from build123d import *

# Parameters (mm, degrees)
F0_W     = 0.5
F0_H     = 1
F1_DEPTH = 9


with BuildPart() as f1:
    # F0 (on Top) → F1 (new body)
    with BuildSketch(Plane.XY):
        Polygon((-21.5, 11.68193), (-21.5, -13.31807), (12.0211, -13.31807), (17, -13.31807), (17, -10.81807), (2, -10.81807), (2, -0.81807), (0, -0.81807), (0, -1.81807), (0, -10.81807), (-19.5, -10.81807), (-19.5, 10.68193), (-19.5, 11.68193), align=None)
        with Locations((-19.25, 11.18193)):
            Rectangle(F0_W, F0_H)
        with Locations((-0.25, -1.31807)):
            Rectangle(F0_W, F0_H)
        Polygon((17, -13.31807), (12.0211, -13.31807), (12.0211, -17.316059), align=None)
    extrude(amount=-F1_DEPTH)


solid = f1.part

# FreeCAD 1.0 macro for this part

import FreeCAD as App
import Part
import Sketcher
from FreeCAD import Vector
Q = App.Units.Quantity

doc = App.newDocument("Part")
body = doc.addObject("PartDesign::Body", "Body")

# Sketch on XY plane
sketch1 = body.newObject("Sketcher::SketchObject", "Sketch")
sketch1.AttachmentSupport = (doc.getObject("XY_Plane"), [""])
sketch1.MapMode = "FlatFace"
sketch1.addGeometry([
    Part.LineSegment(Vector(-21.5, 11.7, 0), Vector(-21.5, -13.3, 0)),  # 0
    Part.LineSegment(Vector(-21.5, -13.3, 0), Vector(12, -13.3, 0)),  # 1
    Part.LineSegment(Vector(12, -13.3, 0), Vector(12, -17.3, 0)),  # 2
    Part.LineSegment(Vector(12, -17.3, 0), Vector(17, -13.3, 0)),  # 3
    Part.LineSegment(Vector(17, -13.3, 0), Vector(17, -10.8, 0)),  # 4
    Part.LineSegment(Vector(17, -10.8, 0), Vector(2, -10.8, 0)),  # 5
    Part.LineSegment(Vector(2, -10.8, 0), Vector(2, -0.8, 0)),  # 6
    Part.LineSegment(Vector(2, -0.8, 0), Vector(-0.5, -0.8, 0)),  # 7
    Part.LineSegment(Vector(-0.5, -0.8, 0), Vector(-0.5, -1.8, 0)),  # 8
    Part.LineSegment(Vector(-0.5, -1.8, 0), Vector(0, -1.8, 0)),  # 9
    Part.LineSegment(Vector(0, -1.8, 0), Vector(0, -10.8, 0)),  # 10
    Part.LineSegment(Vector(0, -10.8, 0), Vector(-19.5, -10.8, 0)),  # 11
    Part.LineSegment(Vector(-19.5, -10.8, 0), Vector(-19.5, 10.7, 0)),  # 12
    Part.LineSegment(Vector(-19.5, 10.7, 0), Vector(-19, 10.7, 0)),  # 13
    Part.LineSegment(Vector(-19, 10.7, 0), Vector(-19, 11.7, 0)),  # 14
    Part.LineSegment(Vector(-19, 11.7, 0), Vector(-21.5, 11.7, 0)),  # 15
], False)
sketch1.addConstraint([
    Sketcher.Constraint("Coincident", 0, 2, 1, 1),
    Sketcher.Constraint("Coincident", 1, 2, 2, 1),
    Sketcher.Constraint("Coincident", 2, 2, 3, 1),
    Sketcher.Constraint("Coincident", 3, 2, 4, 1),
    Sketcher.Constraint("Coincident", 4, 2, 5, 1),
    Sketcher.Constraint("Coincident", 5, 2, 6, 1),
    Sketcher.Constraint("Coincident", 6, 2, 7, 1),
    Sketcher.Constraint("Coincident", 7, 2, 8, 1),
    Sketcher.Constraint("Coincident", 8, 2, 9, 1),
    Sketcher.Constraint("Coincident", 9, 2, 10, 1),
    Sketcher.Constraint("Coincident", 10, 2, 11, 1),
    Sketcher.Constraint("Coincident", 11, 2, 12, 1),
    Sketcher.Constraint("Coincident", 12, 2, 13, 1),
    Sketcher.Constraint("Coincident", 13, 2, 14, 1),
    Sketcher.Constraint("Coincident", 14, 2, 15, 1),
    Sketcher.Constraint("Coincident", 15, 2, 0, 1),
    Sketcher.Constraint("Vertical", 0),
    Sketcher.Constraint("Horizontal", 1),
    Sketcher.Constraint("Vertical", 2),
    Sketcher.Constraint("Vertical", 4),
    Sketcher.Constraint("Horizontal", 5),
    Sketcher.Constraint("Vertical", 6),
    Sketcher.Constraint("Horizontal", 7),
    Sketcher.Constraint("Vertical", 8),
    Sketcher.Constraint("Horizontal", 9),
    Sketcher.Constraint("Vertical", 10),
    Sketcher.Constraint("Horizontal", 11),
    Sketcher.Constraint("Vertical", 12),
    Sketcher.Constraint("Horizontal", 13),
    Sketcher.Constraint("Vertical", 14),
    Sketcher.Constraint("Horizontal", 15),
    Sketcher.Constraint("PointOnObject", 9, 2, -2),
    Sketcher.Constraint("Horizontal", 1, 2, 3, 2),
    Sketcher.Constraint("Horizontal", 5, 2, 10, 2),
    Sketcher.Constraint("Equal", 9, 13),
    Sketcher.Constraint("Equal", 7, 15),
    Sketcher.Constraint("Equal", 15, 4),
    Sketcher.Constraint("Equal", 8, 14),
    Sketcher.Constraint("DistanceX", 5, 2, 5, 1, Q("15 mm")),
    Sketcher.Constraint("DistanceY", 0, 2, 0, 1, Q("25 mm")),
    Sketcher.Constraint("DistanceY", 6, 1, 6, 2, Q("10 mm")),
    Sketcher.Constraint("DistanceY", 8, 2, 8, 1, Q("1 mm")),
    Sketcher.Constraint("DistanceX", 7, 2, 7, 1, Q("2.5 mm")),
    Sketcher.Constraint("DistanceX", 9, 1, 9, 2, Q("0.5 mm")),
    Sketcher.Constraint("DistanceX", 11, 2, 11, 1, Q("19.5 mm")),
    Sketcher.Constraint("DistanceX", 1, 1, 1, 2, Q("33.5211 mm")),
    Sketcher.Constraint("DistanceY", 2, 2, 2, 1, Q("3.997989 mm")),
    Sketcher.Constraint("DistanceY", 0, 2, -1, 1, Q("13.31807 mm")),
])
pad1 = body.newObject("PartDesign::Pad", "Pad")
pad1.Profile = sketch1
pad1.Length = 9
pad1.Reversed = True

doc.recompute()
